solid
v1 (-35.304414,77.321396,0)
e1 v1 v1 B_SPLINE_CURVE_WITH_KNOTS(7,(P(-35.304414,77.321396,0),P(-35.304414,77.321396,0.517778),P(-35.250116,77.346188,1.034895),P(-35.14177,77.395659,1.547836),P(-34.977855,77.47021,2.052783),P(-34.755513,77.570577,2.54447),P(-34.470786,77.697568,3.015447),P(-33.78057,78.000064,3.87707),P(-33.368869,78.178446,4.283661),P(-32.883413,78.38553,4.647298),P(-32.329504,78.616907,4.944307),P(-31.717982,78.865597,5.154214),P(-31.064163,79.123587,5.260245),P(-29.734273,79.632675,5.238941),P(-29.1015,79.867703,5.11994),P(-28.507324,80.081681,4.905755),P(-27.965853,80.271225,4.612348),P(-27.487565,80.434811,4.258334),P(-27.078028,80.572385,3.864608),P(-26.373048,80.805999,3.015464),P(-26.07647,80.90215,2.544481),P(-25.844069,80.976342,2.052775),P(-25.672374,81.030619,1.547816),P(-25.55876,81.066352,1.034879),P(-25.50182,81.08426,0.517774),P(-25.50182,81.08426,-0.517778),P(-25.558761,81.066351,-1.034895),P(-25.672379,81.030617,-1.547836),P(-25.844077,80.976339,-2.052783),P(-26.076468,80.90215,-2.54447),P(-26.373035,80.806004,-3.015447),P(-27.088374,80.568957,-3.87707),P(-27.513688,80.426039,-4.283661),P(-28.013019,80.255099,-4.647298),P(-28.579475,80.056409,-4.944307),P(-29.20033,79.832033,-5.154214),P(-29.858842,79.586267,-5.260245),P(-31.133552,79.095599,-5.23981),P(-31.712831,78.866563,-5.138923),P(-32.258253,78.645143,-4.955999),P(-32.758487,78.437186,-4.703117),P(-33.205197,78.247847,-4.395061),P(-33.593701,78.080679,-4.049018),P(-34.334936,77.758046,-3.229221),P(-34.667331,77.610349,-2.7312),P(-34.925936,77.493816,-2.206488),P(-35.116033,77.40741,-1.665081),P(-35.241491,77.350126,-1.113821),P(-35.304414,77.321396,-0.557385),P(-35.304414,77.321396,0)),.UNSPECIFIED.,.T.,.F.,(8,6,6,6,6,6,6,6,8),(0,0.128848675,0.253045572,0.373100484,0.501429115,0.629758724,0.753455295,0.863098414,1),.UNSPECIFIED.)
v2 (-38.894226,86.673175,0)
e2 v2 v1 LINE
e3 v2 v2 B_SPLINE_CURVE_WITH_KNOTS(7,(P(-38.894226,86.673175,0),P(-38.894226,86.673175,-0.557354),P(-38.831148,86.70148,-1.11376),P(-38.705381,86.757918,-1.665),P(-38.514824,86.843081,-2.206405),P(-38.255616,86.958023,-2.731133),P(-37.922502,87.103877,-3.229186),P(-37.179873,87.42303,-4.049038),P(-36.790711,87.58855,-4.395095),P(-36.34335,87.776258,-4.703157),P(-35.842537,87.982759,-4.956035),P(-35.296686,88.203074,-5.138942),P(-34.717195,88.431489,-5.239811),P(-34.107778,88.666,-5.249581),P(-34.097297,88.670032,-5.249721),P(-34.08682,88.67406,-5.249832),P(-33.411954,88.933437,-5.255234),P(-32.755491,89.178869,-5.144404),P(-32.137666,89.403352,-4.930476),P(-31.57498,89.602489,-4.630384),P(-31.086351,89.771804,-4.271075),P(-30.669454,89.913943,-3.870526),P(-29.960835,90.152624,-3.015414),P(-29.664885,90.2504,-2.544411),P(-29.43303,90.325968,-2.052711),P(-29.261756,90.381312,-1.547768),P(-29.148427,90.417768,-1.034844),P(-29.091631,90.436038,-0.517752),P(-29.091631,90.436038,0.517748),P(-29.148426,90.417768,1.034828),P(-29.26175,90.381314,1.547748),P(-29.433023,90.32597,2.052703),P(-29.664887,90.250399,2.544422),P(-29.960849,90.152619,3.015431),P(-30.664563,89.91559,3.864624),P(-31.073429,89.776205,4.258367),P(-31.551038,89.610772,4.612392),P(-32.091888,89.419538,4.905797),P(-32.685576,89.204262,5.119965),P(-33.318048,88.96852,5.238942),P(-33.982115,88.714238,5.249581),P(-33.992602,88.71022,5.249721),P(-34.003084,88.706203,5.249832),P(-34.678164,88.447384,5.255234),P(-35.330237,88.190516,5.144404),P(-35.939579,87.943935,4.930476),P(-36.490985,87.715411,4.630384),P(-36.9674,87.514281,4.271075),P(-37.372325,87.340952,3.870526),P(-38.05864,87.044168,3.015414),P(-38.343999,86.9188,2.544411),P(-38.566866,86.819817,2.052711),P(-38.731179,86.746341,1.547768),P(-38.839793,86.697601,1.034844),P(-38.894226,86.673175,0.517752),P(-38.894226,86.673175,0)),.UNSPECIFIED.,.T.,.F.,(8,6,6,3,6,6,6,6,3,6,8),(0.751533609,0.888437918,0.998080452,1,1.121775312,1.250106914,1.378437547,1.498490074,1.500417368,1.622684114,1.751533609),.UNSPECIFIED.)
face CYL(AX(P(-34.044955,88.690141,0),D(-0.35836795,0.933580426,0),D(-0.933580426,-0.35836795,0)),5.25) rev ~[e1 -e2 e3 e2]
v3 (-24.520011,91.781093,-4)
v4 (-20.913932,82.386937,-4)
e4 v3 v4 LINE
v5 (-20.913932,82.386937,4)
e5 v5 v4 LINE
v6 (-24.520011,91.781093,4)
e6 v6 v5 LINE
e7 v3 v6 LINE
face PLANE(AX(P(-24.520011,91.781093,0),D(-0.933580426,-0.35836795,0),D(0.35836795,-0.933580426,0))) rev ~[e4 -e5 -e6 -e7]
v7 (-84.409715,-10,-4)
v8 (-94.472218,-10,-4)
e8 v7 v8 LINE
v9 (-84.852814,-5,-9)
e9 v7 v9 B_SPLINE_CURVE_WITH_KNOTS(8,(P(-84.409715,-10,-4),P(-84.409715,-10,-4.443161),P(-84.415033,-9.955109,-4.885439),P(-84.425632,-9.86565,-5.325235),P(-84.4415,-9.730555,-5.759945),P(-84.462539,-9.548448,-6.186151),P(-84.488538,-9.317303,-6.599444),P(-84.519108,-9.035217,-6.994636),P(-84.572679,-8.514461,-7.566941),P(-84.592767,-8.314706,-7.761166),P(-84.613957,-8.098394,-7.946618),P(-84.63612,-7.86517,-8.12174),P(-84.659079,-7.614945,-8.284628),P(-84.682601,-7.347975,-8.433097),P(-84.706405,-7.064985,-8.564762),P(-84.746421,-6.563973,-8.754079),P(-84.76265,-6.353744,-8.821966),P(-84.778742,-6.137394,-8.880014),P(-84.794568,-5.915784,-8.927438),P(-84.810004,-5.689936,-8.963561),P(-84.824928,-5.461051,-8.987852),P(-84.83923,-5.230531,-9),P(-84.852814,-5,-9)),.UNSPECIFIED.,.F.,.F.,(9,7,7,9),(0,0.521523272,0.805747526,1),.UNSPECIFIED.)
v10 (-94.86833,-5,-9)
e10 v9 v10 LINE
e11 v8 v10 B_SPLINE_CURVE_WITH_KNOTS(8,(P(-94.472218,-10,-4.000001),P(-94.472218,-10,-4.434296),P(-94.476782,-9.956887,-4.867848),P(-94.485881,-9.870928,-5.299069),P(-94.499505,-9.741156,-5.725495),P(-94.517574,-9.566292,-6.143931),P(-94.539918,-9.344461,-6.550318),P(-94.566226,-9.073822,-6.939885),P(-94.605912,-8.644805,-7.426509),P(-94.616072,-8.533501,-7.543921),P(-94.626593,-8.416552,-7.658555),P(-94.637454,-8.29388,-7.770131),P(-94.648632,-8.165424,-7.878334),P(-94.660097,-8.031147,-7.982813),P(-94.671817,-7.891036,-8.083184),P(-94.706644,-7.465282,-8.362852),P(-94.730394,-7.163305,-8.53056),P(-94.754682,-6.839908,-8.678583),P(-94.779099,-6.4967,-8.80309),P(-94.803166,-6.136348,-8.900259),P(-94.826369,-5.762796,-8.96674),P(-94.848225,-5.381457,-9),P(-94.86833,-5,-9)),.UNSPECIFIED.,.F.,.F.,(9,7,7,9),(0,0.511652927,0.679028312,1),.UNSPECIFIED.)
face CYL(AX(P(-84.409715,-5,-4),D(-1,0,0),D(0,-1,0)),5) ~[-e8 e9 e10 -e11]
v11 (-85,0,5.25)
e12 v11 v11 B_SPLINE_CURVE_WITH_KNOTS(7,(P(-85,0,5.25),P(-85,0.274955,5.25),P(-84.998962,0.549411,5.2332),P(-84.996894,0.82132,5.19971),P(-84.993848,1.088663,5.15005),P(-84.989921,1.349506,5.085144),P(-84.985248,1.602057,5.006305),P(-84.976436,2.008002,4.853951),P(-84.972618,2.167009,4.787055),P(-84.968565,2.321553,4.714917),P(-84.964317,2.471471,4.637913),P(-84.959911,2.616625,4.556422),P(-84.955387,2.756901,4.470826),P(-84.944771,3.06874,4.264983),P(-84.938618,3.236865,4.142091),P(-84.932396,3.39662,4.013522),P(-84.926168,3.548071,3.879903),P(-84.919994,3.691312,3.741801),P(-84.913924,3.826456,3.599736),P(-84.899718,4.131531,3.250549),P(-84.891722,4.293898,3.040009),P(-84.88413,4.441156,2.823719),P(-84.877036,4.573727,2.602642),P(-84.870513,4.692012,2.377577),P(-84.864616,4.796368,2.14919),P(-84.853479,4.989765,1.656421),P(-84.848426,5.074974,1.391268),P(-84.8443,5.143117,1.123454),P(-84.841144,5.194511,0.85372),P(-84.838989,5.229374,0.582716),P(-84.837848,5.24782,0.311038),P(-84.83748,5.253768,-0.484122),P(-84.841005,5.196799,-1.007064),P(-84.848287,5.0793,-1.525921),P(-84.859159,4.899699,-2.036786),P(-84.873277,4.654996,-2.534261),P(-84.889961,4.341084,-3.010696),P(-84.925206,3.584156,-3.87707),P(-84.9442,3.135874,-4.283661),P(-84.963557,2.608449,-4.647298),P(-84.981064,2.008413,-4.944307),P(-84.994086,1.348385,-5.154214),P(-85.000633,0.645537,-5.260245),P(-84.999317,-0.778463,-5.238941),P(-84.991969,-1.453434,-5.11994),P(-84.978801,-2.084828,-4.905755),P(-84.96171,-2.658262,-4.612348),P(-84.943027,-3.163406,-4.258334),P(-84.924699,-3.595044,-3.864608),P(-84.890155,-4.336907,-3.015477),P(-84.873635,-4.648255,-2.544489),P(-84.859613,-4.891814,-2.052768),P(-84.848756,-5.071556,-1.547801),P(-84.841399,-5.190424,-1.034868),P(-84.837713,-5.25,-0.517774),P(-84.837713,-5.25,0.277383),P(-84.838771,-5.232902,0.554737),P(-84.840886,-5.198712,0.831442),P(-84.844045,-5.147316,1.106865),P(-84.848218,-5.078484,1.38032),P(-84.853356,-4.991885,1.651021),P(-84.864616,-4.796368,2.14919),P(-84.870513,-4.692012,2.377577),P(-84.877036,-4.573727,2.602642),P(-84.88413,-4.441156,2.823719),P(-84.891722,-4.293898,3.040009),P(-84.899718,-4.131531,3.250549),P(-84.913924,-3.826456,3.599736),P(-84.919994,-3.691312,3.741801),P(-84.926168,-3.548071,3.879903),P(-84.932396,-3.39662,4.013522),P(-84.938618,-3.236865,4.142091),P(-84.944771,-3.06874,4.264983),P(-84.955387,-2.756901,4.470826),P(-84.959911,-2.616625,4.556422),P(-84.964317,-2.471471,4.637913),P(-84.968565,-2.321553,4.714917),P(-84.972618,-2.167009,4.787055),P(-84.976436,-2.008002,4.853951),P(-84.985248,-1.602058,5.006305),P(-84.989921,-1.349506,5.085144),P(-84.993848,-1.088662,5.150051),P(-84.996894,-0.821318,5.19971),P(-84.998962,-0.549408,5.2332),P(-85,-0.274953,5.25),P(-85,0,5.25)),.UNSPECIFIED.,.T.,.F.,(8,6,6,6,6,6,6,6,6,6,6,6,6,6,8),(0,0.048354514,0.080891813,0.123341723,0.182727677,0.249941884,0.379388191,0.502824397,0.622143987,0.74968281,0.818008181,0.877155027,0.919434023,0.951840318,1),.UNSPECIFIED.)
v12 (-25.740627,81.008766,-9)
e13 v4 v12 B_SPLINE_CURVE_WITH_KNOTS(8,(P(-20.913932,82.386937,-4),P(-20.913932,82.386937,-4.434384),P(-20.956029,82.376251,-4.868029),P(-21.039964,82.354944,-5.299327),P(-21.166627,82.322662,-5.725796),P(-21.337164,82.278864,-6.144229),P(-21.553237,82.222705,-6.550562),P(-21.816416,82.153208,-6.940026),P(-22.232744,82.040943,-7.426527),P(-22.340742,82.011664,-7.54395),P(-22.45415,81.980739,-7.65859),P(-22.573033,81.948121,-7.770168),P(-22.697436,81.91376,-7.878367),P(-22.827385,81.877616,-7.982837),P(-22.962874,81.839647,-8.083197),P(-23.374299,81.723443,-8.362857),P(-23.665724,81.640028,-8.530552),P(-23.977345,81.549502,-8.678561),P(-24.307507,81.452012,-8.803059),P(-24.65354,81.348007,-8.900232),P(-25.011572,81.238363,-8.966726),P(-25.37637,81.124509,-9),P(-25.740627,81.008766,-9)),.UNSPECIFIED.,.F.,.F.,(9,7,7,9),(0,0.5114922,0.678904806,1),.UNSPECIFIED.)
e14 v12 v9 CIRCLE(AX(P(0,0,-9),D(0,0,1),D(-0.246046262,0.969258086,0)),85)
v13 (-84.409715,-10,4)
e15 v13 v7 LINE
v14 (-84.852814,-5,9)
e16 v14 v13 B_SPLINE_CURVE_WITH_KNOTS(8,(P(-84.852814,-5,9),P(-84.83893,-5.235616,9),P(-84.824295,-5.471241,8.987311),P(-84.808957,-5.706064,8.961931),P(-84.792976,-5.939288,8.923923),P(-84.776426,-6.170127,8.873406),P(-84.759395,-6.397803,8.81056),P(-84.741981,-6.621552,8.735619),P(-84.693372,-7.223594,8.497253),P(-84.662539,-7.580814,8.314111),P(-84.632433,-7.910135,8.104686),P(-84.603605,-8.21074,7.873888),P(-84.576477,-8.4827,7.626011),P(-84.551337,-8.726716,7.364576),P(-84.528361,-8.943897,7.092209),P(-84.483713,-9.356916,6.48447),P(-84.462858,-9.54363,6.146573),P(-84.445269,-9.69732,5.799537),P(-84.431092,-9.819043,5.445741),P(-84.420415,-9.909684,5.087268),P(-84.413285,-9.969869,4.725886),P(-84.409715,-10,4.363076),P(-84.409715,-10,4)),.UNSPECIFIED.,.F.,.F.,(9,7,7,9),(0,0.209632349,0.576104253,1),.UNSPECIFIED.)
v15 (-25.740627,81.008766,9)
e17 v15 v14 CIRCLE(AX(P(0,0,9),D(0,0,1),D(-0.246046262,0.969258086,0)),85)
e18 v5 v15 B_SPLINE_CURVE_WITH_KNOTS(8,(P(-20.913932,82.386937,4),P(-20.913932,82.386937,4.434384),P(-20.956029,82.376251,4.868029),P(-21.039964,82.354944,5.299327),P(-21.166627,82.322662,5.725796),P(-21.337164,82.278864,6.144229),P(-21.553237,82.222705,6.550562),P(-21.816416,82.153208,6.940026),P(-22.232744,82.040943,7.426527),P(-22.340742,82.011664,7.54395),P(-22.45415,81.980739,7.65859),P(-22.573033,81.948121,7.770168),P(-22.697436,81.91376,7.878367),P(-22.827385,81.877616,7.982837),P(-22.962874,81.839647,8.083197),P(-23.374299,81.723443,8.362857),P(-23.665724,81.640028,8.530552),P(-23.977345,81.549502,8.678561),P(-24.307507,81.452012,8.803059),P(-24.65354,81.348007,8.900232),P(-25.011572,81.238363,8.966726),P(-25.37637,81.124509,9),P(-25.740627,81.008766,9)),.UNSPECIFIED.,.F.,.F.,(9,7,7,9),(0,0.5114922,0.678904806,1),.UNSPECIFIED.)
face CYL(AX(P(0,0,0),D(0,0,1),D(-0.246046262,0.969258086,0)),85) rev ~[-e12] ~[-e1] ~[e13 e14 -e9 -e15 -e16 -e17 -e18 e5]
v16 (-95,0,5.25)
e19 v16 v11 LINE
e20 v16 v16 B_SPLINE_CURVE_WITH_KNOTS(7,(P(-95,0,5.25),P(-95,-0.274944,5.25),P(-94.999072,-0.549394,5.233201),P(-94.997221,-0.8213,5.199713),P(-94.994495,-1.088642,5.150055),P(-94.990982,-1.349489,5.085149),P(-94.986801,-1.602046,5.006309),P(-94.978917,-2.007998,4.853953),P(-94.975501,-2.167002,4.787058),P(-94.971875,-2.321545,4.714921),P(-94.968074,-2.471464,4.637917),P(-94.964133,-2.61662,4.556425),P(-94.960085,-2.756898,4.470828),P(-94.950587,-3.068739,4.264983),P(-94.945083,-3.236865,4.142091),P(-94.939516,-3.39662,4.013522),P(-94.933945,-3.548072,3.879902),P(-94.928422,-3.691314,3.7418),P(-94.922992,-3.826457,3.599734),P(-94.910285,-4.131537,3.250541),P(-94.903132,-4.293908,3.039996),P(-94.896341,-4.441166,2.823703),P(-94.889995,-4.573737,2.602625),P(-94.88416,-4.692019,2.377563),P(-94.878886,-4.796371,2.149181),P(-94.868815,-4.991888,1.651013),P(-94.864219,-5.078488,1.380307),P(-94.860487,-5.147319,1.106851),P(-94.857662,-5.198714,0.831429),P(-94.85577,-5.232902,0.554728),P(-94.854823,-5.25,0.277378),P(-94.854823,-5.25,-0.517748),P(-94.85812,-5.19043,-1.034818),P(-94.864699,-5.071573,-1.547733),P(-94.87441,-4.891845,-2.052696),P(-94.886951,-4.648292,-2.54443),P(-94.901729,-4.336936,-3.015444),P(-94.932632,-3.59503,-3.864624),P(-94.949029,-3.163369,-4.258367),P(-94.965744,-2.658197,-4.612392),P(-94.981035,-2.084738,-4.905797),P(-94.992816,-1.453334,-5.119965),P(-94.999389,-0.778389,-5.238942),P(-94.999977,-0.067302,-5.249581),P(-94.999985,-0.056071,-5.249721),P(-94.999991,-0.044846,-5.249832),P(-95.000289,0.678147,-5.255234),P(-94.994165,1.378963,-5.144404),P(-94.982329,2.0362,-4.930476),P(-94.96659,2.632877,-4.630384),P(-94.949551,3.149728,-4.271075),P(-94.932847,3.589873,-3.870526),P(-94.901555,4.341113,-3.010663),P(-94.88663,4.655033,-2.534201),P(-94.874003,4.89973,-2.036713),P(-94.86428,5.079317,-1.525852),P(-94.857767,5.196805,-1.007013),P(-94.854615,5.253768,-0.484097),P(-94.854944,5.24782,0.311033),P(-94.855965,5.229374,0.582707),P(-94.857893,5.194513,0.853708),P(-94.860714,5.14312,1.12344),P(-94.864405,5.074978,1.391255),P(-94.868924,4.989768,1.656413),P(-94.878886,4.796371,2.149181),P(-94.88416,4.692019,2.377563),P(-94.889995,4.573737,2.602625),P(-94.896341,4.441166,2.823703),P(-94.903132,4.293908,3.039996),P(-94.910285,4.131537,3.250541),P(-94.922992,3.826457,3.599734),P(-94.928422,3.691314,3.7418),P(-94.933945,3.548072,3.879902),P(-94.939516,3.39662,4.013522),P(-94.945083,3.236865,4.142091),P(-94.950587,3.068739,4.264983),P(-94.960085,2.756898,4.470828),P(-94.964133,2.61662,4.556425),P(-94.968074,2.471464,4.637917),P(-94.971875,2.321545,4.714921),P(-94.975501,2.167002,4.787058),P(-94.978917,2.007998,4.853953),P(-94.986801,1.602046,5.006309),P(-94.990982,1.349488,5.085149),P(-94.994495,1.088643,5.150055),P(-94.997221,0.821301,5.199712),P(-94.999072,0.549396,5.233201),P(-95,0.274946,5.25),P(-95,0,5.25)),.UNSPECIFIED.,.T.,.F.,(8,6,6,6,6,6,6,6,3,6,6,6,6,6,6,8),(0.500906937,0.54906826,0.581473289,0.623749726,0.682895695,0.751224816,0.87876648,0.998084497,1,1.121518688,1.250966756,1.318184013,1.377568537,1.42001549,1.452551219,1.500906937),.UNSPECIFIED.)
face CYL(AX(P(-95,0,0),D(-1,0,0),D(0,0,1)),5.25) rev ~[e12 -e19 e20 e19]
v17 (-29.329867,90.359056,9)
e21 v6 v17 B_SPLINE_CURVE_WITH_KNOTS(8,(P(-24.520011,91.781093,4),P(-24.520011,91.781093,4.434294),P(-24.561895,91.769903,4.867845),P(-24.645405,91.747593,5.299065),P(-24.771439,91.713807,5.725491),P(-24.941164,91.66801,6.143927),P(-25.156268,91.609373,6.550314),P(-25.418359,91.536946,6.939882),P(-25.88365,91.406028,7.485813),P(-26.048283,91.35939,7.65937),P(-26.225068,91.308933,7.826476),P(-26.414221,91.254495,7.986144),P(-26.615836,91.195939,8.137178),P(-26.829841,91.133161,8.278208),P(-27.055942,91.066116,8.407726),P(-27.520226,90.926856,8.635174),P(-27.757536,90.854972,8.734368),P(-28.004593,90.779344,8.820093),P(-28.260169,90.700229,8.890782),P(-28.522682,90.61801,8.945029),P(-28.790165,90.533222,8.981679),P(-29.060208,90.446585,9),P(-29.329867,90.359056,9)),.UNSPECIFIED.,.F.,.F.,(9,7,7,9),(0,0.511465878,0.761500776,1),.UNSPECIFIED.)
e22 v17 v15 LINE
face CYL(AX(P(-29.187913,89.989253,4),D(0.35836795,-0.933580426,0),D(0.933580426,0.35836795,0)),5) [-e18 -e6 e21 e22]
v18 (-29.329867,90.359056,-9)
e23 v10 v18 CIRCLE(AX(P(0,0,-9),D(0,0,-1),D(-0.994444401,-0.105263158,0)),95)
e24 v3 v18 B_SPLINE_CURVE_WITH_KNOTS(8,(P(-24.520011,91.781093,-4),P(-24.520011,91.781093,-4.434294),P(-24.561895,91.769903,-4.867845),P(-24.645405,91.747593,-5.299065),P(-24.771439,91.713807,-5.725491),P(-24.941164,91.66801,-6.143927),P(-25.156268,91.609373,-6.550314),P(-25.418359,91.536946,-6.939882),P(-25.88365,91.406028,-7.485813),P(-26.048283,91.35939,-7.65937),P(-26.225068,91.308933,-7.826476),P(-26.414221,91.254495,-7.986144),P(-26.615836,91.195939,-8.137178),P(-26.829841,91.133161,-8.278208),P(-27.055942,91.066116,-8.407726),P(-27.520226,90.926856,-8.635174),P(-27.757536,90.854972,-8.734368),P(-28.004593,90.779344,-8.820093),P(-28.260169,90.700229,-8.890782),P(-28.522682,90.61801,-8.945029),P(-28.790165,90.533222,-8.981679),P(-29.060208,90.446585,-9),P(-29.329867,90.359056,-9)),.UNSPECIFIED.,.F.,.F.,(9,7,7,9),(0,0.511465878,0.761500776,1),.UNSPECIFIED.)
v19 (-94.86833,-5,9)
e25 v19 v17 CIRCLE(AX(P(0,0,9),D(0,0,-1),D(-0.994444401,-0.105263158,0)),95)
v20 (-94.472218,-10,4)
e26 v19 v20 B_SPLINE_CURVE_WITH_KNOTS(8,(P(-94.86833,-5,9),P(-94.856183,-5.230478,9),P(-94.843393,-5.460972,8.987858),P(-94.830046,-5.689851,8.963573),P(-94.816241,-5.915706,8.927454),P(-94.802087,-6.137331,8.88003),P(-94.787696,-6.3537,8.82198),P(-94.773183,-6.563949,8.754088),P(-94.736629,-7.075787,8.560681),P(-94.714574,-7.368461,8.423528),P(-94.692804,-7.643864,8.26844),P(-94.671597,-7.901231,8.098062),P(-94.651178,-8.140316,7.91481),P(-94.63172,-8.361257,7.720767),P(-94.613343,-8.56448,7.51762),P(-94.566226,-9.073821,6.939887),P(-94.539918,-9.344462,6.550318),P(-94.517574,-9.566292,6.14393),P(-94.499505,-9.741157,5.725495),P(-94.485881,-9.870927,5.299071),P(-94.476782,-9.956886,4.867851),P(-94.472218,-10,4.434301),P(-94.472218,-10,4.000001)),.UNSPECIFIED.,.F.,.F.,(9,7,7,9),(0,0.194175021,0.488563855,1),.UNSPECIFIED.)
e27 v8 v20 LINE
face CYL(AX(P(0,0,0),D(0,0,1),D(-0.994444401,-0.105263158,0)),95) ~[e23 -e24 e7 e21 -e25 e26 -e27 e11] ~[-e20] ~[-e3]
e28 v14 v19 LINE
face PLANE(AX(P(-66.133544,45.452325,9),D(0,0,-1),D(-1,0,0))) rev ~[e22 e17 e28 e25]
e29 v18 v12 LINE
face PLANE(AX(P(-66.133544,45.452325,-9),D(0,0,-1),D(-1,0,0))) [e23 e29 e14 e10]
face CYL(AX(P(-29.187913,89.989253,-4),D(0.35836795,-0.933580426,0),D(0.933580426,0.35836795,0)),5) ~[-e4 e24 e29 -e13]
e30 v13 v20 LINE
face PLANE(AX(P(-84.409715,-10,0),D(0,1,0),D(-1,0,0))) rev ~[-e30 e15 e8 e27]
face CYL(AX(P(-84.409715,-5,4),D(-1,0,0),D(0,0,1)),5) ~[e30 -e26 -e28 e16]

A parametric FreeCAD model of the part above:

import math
import FreeCAD as App
import Part
import Sketcher
from FreeCAD import Vector
Q = App.Units.Quantity


def edges_at(feature, points):
    """Names of the edges that pass closest to the given points."""
    edges = feature.Shape.Edges
    near = lambda p: min(range(len(edges)), key=lambda i: edges[i].distToShape(Part.Vertex(*p))[0])
    return sorted({f"Edge{near(p) + 1}" for p in points})

doc = App.newDocument("Part")
body = doc.addObject("PartDesign::Body", "Body")

# Sketch on XY plane
sketch1 = body.newObject("Sketcher::SketchObject", "Sketch")
sketch1.AttachmentSupport = (doc.getObject("XY_Plane"), [""])
sketch1.MapMode = "FlatFace"
sketch1.addGeometry([
    Part.LineSegment(Vector(-21, 82, 0), Vector(-25, 92, 0)),
    Part.ArcOfCircle(Part.Circle(Vector(0, 0, 0), Vector(0, 0, 1), 95), math.radians(105), math.radians(186)),
    Part.LineSegment(Vector(-94, -10, 0), Vector(-84, -10, 0)),
    Part.ArcOfCircle(Part.Circle(Vector(0, 0, 0), Vector(0, 0, 1), 85), math.radians(104), math.radians(187)),
], False)
sketch1.addConstraint([
    Sketcher.Constraint("Coincident", 0, 2, 1, 1),
    Sketcher.Constraint("Coincident", 1, 2, 2, 1),
    Sketcher.Constraint("Coincident", 2, 2, 3, 2),
    Sketcher.Constraint("Coincident", 3, 1, 0, 1),
    Sketcher.Constraint("Horizontal", 2),
    Sketcher.Constraint("Coincident", 1, 3, -1, 1),
    Sketcher.Constraint("Coincident", 3, 3, -1, 1),
    Sketcher.Constraint("Radius", 1, Q("95 mm")),
    Sketcher.Constraint("Radius", 3, Q("85 mm")),
    Sketcher.Constraint("Angle", 0, Q("111 deg")),
    Sketcher.Constraint("DistanceY", 1, 2, -1, 1, Q("10 mm")),
    Sketcher.Constraint("DistanceX", 0, 2, -1, 1, Q("24.520011 mm")),
])
pad1 = body.newObject("PartDesign::Pad", "Pad")
pad1.Profile = sketch1
pad1.Length = 18
pad1.Midplane = True

# Sketch on an angled plane
sketch2 = body.newObject("Sketcher::SketchObject", "Sketch001")
sketch2.Placement = App.Placement(Vector(-34.044955, 88.690141, 0), App.Rotation(Vector(0.933580426, 0.35836795, 0), Vector(0, 0, -0.999999999), Vector(-0.35836795, 0.933580426, 0), "ZXY"))
sketch2.addGeometry(Part.Circle(Vector(0, 0, 0), Vector(0, 0, 1), 5), False)
sketch2.addConstraint([
    Sketcher.Constraint("Coincident", 0, 3, -1, 1),
    Sketcher.Constraint("Diameter", 0, Q("10.5 mm")),
])
pocket1 = body.newObject("PartDesign::Pocket", "Pocket")
pocket1.Profile = sketch2
pocket1.Length = 18

# Sketch on YZ plane
sketch3 = body.newObject("Sketcher::SketchObject", "Sketch002")
sketch3.AttachmentSupport = (doc.getObject("YZ_Plane"), [""])
sketch3.MapMode = "FlatFace"
sketch3.AttachmentOffset = App.Placement(Vector(0, 0, -95), App.Rotation())
sketch3.addGeometry(Part.Circle(Vector(0, 0, 0), Vector(0, 0, 1), 5), False)
sketch3.addConstraint([
    Sketcher.Constraint("Coincident", 0, 3, -1, 1),
    Sketcher.Constraint("Diameter", 0, Q("10.5 mm")),
])
pocket2 = body.newObject("PartDesign::Pocket", "Pocket001")
pocket2.Profile = sketch3
pocket2.Length = 18
pocket2.Reversed = True
doc.recompute()

fillet = body.newObject("PartDesign::Fillet", "Fillet")
fillet.Base = (pocket2, edges_at(pocket2, [
    (-89.441, -10, 9),
    (-89.441, -10, -9),
    (-22.717, 87.084, -9),
    (-22.717, 87.084, 9),
]))
fillet.Radius = 5

doc.recompute()
